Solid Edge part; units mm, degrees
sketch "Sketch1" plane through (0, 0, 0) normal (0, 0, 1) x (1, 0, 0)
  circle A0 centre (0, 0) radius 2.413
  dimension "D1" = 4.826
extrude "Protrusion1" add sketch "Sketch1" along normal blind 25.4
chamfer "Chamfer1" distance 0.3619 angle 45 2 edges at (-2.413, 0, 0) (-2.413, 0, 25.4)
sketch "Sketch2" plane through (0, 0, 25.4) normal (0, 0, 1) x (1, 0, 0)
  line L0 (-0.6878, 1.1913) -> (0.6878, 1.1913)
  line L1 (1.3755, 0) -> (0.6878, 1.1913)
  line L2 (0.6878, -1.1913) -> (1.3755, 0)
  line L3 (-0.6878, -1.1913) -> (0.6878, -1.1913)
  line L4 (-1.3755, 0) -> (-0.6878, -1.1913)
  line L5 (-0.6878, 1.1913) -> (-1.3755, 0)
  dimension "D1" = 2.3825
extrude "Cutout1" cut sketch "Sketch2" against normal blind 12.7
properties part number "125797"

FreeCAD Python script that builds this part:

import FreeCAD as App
import Part
import Sketcher

V = App.Vector
Q = App.Units.Quantity


def edges_at(feature, points):
    """Names of the edges that pass closest to the given points."""
    edges = feature.Shape.Edges
    near = lambda p: min(range(len(edges)), key=lambda i: edges[i].distToShape(Part.Vertex(*p))[0])
    return sorted({f"Edge{near(p) + 1}" for p in points})

doc = App.newDocument("Part")
body = doc.addObject("PartDesign::Body", "Body")

sketch1 = doc.addObject("Sketcher::SketchObject", "Sketch")
body.addObject(sketch1)
sketch1.AttachmentSupport = (doc.XY_Plane, [""])
sketch1.MapMode = "FlatFace"
sketch1.addGeometry(Part.Circle(V(0, 0, 0), V(0, 0, 1), 2.4), False)
sketch1.addConstraint(Sketcher.Constraint("Coincident", 0, 3, -1, 1))
sketch1.addConstraint(Sketcher.Constraint("Diameter", 0, Q("0.19 in")))
pad1 = doc.addObject("PartDesign::Pad", "Pad")
body.addObject(pad1)
pad1.Profile = sketch1
pad1.Length = Q("1 in")
doc.recompute()

chamfer = doc.addObject("PartDesign::Chamfer", "Chamfer")
body.addObject(chamfer)
chamfer.Base = (pad1, edges_at(pad1, [(-2.413, 0, 0), (-2.413, 0, 25.4)]))
chamfer.Size = 0.3619

sketch2 = doc.addObject("Sketcher::SketchObject", "Sketch001")
body.addObject(sketch2)
sketch2.AttachmentSupport = (doc.XY_Plane, [""])
sketch2.MapMode = "FlatFace"
sketch2.AttachmentOffset = App.Placement(V(0, 0, 1 * 25.4), App.Rotation())
sketch2.addGeometry(Part.LineSegment(V(0.7, 1.2, 0), V(-0.7, 1.2, 0)), False)
sketch2.addGeometry(Part.LineSegment(V(-0.7, 1.2, 0), V(-1.4, 0, 0)), False)
sketch2.addGeometry(Part.LineSegment(V(-1.4, 0, 0), V(-0.7, -1.2, 0)), False)
sketch2.addGeometry(Part.LineSegment(V(-0.7, -1.2, 0), V(0.7, -1.2, 0)), False)
sketch2.addGeometry(Part.LineSegment(V(0.7, -1.2, 0), V(1.4, 0, 0)), False)
sketch2.addGeometry(Part.LineSegment(V(1.4, 0, 0), V(0.7, 1.2, 0)), False)
sketch2.addConstraint(Sketcher.Constraint("Coincident", 0, 2, 1, 1))
sketch2.addConstraint(Sketcher.Constraint("Coincident", 1, 2, 2, 1))
sketch2.addConstraint(Sketcher.Constraint("Coincident", 2, 2, 3, 1))
sketch2.addConstraint(Sketcher.Constraint("Coincident", 3, 2, 4, 1))
sketch2.addConstraint(Sketcher.Constraint("Coincident", 4, 2, 5, 1))
sketch2.addConstraint(Sketcher.Constraint("Coincident", 5, 2, 0, 1))
sketch2.addConstraint(Sketcher.Constraint("Horizontal", 0))
sketch2.addConstraint(Sketcher.Constraint("Horizontal", 3))
sketch2.addConstraint(Sketcher.Constraint("Symmetric", 0, 2, 3, 2, -1, 1))
sketch2.addConstraint(Sketcher.Constraint("Symmetric", 1, 2, 4, 2, -1, 1))
sketch2.addConstraint(Sketcher.Constraint("PointOnObject", 1, 2, -1))
sketch2.addConstraint(Sketcher.Constraint("Parallel", 2, 5))
sketch2.addConstraint(Sketcher.Constraint("Vertical", 0, 2, 2, 2))
sketch2.addConstraint(Sketcher.Constraint("DistanceX", 0, 2, 0, 1, 1.3756))
sketch2.addConstraint(Sketcher.Constraint("DistanceY", -1, 1, 0, 2, Q("0.0469 in")))
sketch2.addConstraint(Sketcher.Constraint("DistanceX", 1, 2, 4, 2, Q("0.1083 in")))
pocket1 = doc.addObject("PartDesign::Pocket", "Pocket")
body.addObject(pocket1)
pocket1.Profile = sketch2
pocket1.Length = Q("0.5 in")

doc.recompute()
